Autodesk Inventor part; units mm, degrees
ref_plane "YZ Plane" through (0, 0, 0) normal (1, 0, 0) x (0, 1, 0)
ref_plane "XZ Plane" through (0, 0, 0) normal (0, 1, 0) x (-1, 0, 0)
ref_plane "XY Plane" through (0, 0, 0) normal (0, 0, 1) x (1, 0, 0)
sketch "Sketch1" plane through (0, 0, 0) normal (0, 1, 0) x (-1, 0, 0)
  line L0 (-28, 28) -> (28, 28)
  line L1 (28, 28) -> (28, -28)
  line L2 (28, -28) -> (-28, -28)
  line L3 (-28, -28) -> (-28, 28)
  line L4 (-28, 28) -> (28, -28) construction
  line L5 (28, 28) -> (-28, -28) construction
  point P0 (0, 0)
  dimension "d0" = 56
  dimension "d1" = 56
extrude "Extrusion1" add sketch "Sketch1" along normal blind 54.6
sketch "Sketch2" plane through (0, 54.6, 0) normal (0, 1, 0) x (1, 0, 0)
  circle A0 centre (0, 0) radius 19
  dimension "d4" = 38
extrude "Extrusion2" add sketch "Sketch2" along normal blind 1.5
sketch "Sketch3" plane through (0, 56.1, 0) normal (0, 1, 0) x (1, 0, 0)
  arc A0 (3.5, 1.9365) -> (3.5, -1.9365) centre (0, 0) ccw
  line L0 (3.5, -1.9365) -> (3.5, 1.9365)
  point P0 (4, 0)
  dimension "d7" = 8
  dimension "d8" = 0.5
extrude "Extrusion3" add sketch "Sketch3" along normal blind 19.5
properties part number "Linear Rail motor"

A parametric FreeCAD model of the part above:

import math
import FreeCAD as App
import Part
import Sketcher
Q = App.Units.Quantity

doc = App.newDocument("Part")
body = doc.addObject("PartDesign::Body", "Body")

# Sketch on XZ plane
sketch1 = doc.addObject("Sketcher::SketchObject", "Sketch")
body.addObject(sketch1)
sketch1.AttachmentSupport = (doc.XZ_Plane, [""])
sketch1.MapMode = "FlatFace"
sketch1.addGeometry([
    Part.LineSegment(App.Vector(-28, 28, 0), App.Vector(28, 28, 0)),
    Part.LineSegment(App.Vector(28, 28, 0), App.Vector(28, -28, 0)),
    Part.LineSegment(App.Vector(28, -28, 0), App.Vector(-28, -28, 0)),
    Part.LineSegment(App.Vector(-28, -28, 0), App.Vector(-28, 28, 0)),
], False)
sketch1.addConstraint([
    Sketcher.Constraint("Coincident", 0, 2, 1, 1),
    Sketcher.Constraint("Coincident", 1, 2, 2, 1),
    Sketcher.Constraint("Coincident", 2, 2, 3, 1),
    Sketcher.Constraint("Coincident", 3, 2, 0, 1),
    Sketcher.Constraint("Horizontal", 0),
    Sketcher.Constraint("Vertical", 1),
    Sketcher.Constraint("Horizontal", 2),
    Sketcher.Constraint("Vertical", 3),
    Sketcher.Constraint("Symmetric", 0, 2, 2, 2, -1, 1),
    Sketcher.Constraint("Equal", 2, 1),
    Sketcher.Constraint("DistanceX", 0, 1, 0, 2, Q("56 mm")),
])
pad1 = doc.addObject("PartDesign::Pad", "Pad")
body.addObject(pad1)
pad1.Profile = sketch1
pad1.Length = 54.6
pad1.Reversed = True

# Sketch on XZ plane
sketch2 = doc.addObject("Sketcher::SketchObject", "Sketch001")
body.addObject(sketch2)
sketch2.AttachmentSupport = (doc.XZ_Plane, [""])
sketch2.MapMode = "FlatFace"
sketch2.AttachmentOffset = App.Placement(App.Vector(0, 0, -54.6), App.Rotation())
sketch2.addGeometry(Part.Circle(App.Vector(0, 0, 0), App.Vector(0, 0, 1), 19), False)
sketch2.addConstraint([
    Sketcher.Constraint("Coincident", 0, 3, -1, 1),
    Sketcher.Constraint("Diameter", 0, Q("38 mm")),
])
pad2 = doc.addObject("PartDesign::Pad", "Pad001")
body.addObject(pad2)
pad2.Profile = sketch2
pad2.Length = 1.5
pad2.Reversed = True

# Sketch on XZ plane
sketch3 = doc.addObject("Sketcher::SketchObject", "Sketch002")
body.addObject(sketch3)
sketch3.AttachmentSupport = (doc.XZ_Plane, [""])
sketch3.MapMode = "FlatFace"
sketch3.AttachmentOffset = App.Placement(App.Vector(0, 0, -56.1), App.Rotation())
sketch3.addGeometry([
    Part.LineSegment(App.Vector(3.5, 1.9, 0), App.Vector(3.5, -1.9, 0)),
    Part.ArcOfCircle(Part.Circle(App.Vector(0, 0, 0), App.Vector(0, 0, 1), 4), math.radians(29), math.radians(331)),
], False)
sketch3.addConstraint([
    Sketcher.Constraint("Coincident", 0, 1, 1, 1),
    Sketcher.Constraint("Coincident", 1, 2, 0, 2),
    Sketcher.Constraint("Vertical", 0),
    Sketcher.Constraint("Coincident", 1, 3, -1, 1),
    Sketcher.Constraint("Radius", 1, Q("4 mm")),
    Sketcher.Constraint("DistanceX", -1, 1, 0, 1, Q("3.5 mm")),
])
pad3 = doc.addObject("PartDesign::Pad", "Pad002")
body.addObject(pad3)
pad3.Profile = sketch3
pad3.Length = 19.5
pad3.Reversed = True

doc.recompute()
